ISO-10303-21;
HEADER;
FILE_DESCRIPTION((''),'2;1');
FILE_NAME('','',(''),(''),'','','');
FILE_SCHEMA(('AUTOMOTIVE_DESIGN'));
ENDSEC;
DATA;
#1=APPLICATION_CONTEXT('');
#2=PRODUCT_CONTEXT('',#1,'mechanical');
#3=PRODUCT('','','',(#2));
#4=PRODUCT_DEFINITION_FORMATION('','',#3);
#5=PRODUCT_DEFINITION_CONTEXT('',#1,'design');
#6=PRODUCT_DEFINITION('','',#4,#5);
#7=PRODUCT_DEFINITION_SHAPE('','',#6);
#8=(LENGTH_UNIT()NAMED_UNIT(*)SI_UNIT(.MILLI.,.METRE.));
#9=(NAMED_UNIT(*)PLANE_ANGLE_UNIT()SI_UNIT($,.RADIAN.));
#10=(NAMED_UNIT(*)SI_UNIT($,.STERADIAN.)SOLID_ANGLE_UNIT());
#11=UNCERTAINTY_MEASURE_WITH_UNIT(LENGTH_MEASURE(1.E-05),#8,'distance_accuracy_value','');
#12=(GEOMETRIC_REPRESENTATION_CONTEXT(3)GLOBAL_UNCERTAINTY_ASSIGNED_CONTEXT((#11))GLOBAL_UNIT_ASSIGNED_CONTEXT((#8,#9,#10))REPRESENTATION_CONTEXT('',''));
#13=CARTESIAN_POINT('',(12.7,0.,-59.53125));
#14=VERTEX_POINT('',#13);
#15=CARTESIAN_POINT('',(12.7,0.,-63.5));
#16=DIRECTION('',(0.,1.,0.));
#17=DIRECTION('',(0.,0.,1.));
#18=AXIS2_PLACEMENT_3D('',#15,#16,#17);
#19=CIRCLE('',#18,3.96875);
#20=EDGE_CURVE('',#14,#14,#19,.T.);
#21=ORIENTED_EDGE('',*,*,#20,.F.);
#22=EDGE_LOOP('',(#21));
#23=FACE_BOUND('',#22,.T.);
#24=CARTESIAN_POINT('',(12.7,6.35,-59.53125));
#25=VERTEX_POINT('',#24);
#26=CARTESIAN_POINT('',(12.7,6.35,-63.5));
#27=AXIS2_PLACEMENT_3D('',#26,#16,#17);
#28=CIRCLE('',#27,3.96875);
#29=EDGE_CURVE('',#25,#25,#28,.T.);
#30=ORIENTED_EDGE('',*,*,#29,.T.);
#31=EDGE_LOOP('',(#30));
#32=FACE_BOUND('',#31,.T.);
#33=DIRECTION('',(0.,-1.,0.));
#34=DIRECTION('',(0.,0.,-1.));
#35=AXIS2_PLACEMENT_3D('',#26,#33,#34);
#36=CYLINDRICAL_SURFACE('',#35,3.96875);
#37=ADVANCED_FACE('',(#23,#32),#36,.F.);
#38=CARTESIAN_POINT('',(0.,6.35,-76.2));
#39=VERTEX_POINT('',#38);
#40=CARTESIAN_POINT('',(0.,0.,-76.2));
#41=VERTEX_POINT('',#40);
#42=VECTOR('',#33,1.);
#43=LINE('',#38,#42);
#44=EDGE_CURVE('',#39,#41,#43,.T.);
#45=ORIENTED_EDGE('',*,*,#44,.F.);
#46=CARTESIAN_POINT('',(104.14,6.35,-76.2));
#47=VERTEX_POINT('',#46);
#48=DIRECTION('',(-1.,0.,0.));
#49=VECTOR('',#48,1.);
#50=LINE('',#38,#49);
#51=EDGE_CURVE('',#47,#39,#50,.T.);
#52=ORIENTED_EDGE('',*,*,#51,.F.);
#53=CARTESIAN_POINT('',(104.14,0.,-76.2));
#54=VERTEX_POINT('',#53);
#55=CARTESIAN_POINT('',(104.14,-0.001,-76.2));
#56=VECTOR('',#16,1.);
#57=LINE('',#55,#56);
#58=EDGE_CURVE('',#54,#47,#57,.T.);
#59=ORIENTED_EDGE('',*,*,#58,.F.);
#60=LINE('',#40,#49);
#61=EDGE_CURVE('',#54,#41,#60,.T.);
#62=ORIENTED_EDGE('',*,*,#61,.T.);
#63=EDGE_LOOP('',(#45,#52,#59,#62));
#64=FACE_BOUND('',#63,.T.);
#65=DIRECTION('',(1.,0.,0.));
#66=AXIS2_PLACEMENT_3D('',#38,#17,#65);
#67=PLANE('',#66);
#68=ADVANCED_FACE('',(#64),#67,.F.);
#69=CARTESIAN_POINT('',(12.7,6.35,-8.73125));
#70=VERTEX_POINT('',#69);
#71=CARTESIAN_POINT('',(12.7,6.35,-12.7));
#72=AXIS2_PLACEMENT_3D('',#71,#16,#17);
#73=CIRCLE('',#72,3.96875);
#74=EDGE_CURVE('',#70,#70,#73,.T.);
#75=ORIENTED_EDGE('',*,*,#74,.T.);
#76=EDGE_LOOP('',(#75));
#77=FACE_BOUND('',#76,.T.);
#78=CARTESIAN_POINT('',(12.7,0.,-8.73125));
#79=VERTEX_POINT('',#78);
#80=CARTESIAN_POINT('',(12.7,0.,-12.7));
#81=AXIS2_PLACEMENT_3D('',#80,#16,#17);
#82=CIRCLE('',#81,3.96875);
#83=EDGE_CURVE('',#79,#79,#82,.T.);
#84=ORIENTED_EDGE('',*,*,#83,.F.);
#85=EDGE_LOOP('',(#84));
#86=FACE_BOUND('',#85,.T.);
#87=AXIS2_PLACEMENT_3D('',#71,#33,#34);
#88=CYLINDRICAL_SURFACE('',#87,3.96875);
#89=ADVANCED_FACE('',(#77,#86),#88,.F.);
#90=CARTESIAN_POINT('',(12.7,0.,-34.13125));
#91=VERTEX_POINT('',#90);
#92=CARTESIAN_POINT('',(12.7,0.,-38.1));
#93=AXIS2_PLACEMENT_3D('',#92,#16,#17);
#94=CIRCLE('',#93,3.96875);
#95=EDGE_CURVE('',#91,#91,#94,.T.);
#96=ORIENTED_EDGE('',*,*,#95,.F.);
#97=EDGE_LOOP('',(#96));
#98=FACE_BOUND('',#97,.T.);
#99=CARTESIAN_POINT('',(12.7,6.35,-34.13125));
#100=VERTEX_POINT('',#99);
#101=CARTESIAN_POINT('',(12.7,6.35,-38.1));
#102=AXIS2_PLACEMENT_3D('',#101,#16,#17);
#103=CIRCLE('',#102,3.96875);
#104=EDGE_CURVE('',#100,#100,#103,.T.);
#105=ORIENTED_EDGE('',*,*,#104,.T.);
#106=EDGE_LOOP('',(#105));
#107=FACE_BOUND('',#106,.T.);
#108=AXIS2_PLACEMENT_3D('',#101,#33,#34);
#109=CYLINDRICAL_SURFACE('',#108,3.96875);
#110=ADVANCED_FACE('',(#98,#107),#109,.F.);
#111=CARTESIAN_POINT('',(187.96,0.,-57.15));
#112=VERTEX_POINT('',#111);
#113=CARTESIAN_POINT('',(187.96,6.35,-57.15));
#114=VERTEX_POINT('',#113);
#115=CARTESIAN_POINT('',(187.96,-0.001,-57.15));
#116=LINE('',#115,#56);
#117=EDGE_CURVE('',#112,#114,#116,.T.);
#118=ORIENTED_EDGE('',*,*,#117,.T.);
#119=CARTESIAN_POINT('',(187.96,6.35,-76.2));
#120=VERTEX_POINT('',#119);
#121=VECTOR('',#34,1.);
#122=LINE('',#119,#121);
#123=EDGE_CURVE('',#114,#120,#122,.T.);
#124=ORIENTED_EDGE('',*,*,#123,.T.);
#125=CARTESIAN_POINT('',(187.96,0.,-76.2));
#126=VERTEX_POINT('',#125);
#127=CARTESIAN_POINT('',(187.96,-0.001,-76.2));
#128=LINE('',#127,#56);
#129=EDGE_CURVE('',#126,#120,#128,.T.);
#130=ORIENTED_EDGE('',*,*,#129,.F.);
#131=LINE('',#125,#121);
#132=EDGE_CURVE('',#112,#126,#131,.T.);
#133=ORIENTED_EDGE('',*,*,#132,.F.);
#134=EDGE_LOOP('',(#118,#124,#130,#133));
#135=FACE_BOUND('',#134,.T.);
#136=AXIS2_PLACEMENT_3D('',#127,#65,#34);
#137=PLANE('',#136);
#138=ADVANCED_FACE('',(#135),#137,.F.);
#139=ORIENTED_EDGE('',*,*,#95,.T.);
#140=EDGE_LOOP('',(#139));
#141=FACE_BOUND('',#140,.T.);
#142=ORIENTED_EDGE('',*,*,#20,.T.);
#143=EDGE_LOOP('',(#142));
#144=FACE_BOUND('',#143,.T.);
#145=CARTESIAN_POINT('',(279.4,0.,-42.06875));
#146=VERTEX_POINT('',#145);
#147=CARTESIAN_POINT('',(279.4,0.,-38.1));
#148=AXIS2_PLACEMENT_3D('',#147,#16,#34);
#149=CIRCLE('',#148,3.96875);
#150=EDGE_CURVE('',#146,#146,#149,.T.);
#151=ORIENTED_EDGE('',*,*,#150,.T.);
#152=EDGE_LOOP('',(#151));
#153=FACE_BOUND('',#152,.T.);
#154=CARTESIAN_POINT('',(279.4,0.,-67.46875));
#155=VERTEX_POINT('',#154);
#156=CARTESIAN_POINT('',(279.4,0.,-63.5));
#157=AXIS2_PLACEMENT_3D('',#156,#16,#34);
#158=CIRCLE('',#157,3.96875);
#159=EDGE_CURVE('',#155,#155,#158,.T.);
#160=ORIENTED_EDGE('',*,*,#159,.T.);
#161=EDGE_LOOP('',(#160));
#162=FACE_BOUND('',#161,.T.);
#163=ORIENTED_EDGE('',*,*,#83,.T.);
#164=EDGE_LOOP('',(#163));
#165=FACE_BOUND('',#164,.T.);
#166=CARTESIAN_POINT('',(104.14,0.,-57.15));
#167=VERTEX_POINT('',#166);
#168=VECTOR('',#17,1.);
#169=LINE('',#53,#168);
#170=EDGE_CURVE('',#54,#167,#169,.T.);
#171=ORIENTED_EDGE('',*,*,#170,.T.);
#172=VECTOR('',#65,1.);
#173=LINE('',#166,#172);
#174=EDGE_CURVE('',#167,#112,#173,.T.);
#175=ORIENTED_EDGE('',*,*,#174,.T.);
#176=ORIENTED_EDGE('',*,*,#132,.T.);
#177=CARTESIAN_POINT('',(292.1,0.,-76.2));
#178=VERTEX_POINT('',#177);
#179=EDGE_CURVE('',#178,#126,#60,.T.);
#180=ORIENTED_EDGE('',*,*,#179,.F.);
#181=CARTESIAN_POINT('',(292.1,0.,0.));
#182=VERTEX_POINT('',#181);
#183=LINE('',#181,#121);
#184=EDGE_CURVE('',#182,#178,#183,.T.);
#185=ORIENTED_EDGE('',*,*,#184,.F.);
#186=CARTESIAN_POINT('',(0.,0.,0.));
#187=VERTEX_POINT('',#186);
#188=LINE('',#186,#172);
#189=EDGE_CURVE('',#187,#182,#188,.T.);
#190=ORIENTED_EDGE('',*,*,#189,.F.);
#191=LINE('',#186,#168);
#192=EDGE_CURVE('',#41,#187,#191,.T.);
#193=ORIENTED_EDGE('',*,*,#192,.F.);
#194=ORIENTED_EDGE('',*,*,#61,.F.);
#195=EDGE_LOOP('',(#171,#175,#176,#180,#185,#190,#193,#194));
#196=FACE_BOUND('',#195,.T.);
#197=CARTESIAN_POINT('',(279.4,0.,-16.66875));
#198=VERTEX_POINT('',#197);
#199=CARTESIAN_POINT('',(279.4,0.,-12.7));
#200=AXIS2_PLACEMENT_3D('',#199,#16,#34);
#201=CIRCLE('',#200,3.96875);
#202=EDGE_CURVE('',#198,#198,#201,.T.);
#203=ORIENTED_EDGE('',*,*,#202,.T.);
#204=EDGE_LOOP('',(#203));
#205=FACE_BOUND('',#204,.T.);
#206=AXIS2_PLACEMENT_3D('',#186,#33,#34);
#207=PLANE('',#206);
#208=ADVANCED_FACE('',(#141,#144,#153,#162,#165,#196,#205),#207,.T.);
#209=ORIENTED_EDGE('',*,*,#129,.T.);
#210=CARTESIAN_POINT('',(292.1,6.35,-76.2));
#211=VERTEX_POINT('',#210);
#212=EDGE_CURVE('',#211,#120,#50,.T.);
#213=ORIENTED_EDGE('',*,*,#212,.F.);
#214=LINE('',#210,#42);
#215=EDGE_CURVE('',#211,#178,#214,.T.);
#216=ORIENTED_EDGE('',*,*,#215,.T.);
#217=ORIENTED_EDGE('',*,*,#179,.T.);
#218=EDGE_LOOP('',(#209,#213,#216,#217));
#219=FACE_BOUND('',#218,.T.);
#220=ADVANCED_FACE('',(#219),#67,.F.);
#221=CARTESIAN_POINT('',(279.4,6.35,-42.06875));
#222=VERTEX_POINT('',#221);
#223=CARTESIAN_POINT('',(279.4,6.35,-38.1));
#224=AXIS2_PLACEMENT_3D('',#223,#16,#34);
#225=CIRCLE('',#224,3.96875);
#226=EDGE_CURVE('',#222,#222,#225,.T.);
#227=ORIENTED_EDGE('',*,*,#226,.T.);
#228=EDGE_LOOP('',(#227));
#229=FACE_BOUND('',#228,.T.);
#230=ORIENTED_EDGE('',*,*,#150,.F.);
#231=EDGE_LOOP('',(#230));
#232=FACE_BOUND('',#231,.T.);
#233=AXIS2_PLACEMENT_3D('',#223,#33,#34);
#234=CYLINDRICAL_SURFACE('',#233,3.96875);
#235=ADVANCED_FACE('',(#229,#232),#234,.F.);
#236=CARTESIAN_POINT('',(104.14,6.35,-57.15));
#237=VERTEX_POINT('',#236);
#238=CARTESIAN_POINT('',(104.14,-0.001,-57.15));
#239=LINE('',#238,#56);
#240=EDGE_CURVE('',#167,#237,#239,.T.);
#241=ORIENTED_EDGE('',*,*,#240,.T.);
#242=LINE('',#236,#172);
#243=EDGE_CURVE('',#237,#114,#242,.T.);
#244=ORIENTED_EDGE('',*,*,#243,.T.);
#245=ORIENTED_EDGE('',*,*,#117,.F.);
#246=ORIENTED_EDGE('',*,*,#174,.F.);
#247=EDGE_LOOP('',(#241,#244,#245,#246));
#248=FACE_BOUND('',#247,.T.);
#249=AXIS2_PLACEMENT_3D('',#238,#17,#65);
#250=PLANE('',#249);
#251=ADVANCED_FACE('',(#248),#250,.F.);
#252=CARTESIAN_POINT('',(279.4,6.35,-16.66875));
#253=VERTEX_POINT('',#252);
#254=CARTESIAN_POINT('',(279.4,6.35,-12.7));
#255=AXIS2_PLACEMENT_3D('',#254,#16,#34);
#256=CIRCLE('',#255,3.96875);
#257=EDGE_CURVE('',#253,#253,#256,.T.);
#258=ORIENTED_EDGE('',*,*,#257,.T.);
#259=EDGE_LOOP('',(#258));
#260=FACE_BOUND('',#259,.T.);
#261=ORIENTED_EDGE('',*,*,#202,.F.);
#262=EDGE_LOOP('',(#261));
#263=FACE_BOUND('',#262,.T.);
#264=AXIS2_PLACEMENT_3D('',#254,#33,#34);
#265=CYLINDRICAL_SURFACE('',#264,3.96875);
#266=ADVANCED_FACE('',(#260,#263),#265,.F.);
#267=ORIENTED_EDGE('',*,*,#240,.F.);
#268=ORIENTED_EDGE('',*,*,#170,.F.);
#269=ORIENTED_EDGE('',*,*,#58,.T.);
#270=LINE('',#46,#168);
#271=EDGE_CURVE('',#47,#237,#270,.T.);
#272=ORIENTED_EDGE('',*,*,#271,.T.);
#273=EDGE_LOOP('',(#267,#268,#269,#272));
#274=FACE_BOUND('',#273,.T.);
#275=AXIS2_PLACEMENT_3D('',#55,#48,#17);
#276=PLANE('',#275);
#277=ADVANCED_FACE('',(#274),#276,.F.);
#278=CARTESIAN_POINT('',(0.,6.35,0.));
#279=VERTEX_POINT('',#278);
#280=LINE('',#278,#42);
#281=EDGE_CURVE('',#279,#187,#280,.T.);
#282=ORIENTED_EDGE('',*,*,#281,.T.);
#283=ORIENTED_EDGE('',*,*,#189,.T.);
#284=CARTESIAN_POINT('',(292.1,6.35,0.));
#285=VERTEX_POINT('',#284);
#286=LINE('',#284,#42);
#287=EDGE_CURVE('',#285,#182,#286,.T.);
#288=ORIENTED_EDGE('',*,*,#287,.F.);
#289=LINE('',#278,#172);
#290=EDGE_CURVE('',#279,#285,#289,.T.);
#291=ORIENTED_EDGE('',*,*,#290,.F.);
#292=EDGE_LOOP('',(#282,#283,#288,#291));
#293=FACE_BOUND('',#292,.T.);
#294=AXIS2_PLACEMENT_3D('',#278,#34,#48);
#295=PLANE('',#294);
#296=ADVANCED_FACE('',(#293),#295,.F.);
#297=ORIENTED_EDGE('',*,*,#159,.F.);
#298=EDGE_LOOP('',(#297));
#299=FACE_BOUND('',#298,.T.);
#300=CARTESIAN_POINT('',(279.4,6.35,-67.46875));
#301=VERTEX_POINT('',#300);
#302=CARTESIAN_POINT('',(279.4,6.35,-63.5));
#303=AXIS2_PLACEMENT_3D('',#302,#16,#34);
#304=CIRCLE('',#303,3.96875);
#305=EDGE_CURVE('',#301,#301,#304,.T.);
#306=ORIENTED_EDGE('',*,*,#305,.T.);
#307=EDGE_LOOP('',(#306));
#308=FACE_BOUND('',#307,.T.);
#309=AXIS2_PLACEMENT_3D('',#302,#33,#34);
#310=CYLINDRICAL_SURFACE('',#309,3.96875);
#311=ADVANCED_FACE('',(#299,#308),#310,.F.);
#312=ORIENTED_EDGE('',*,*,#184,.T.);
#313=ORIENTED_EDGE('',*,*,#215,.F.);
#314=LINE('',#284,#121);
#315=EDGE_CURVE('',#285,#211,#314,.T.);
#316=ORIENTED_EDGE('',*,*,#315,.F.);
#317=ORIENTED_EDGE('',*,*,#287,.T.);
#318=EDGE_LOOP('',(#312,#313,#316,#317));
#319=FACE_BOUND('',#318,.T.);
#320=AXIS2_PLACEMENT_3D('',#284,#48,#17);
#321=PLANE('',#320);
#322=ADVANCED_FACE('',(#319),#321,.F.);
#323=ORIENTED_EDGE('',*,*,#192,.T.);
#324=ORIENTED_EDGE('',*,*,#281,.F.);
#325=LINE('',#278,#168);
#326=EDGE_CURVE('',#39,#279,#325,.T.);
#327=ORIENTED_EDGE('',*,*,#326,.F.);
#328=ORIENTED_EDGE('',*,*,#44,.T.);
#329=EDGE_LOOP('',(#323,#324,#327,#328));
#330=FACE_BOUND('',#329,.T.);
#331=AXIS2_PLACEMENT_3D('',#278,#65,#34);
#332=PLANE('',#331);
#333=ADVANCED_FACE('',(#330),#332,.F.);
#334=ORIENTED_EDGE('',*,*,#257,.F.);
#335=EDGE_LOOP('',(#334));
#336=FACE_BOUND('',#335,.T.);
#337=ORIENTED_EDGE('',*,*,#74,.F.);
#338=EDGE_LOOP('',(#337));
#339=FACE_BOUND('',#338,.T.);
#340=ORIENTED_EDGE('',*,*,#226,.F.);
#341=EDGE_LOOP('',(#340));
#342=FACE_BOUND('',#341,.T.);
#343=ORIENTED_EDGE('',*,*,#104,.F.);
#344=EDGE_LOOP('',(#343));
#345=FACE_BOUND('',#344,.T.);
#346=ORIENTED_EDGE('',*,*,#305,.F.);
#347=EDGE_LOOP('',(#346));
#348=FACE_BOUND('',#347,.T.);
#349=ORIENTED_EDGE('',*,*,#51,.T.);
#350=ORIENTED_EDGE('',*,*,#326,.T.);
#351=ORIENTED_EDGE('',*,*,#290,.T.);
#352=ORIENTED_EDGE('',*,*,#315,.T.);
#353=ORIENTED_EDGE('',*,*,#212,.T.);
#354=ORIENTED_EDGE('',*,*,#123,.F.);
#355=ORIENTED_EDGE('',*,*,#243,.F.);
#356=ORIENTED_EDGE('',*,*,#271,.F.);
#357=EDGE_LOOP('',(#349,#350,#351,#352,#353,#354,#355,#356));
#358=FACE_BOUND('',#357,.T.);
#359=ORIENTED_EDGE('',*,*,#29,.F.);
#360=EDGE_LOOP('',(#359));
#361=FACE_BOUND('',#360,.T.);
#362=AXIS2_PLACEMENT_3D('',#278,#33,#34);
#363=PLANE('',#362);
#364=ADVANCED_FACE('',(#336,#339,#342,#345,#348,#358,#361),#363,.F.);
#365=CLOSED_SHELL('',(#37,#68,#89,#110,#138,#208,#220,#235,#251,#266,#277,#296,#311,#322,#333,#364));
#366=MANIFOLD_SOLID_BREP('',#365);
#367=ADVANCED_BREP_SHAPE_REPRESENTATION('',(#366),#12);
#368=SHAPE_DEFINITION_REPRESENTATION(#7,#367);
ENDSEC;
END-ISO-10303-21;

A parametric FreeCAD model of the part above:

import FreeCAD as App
import Part
import Sketcher
Q = App.Units.Quantity


def add_polygon(sketch, points):
    """Adds a closed chain of lines whose ends are joined by coincident constraints."""
    first, n = sketch.GeometryCount, len(points)
    for a, b in zip(points, points[1:] + points[:1]):
        sketch.addGeometry(Part.LineSegment(App.Vector(*a, 0), App.Vector(*b, 0)), False)
    for i in range(n):
        sketch.addConstraint(Sketcher.Constraint("Coincident", first + i, 2, first + (i + 1) % n, 1))

doc = App.newDocument("Part")
body = doc.addObject("PartDesign::Body", "Body")

# Sketch on XZ plane
sketch1 = body.newObject("Sketcher::SketchObject", "Sketch")
sketch1.AttachmentSupport = (doc.getObject("XZ_Plane"), [""])
sketch1.MapMode = "FlatFace"
add_polygon(sketch1, [(0, -76.2), (0, 0), (292.1, 0), (292.1, -76.2)])  # lines 0-3
sketch1.addGeometry(Part.Circle(App.Vector(12.7, -12.7, 0), App.Vector(0, 0, 1), 4), False)  # 4
sketch1.addGeometry(Part.Circle(App.Vector(279.4, -12.7, 0), App.Vector(0, 0, 1), 4), False)  # 5
sketch1.addGeometry(Part.Circle(App.Vector(12.7, -38.1, 0), App.Vector(0, 0, 1), 4), False)  # 6
sketch1.addGeometry(Part.Circle(App.Vector(12.7, -63.5, 0), App.Vector(0, 0, 1), 4), False)  # 7
sketch1.addGeometry(Part.Circle(App.Vector(279.4, -38.1, 0), App.Vector(0, 0, 1), 4), False)  # 8
sketch1.addGeometry(Part.Circle(App.Vector(279.4, -63.5, 0), App.Vector(0, 0, 1), 4), False)  # 9
sketch1.addConstraint(Sketcher.Constraint("Vertical", 0))
sketch1.addConstraint(Sketcher.Constraint("Horizontal", 1))
sketch1.addConstraint(Sketcher.Constraint("Vertical", 2))
sketch1.addConstraint(Sketcher.Constraint("Horizontal", 3))
sketch1.addConstraint(Sketcher.Constraint("Coincident", 0, 2, -1, 1))
sketch1.addConstraint(Sketcher.Constraint("Equal", 4, 5))
sketch1.addConstraint(Sketcher.Constraint("Equal", 5, 6))
sketch1.addConstraint(Sketcher.Constraint("Equal", 6, 7))
sketch1.addConstraint(Sketcher.Constraint("Equal", 7, 8))
sketch1.addConstraint(Sketcher.Constraint("Equal", 8, 9))
sketch1.addConstraint(Sketcher.Constraint("Horizontal", 4, 3, 5, 3))
sketch1.addConstraint(Sketcher.Constraint("Horizontal", 6, 3, 8, 3))
sketch1.addConstraint(Sketcher.Constraint("Horizontal", 7, 3, 9, 3))
sketch1.addConstraint(Sketcher.Constraint("Vertical", 4, 3, 6, 3))
sketch1.addConstraint(Sketcher.Constraint("Vertical", 6, 3, 7, 3))
sketch1.addConstraint(Sketcher.Constraint("Vertical", 5, 3, 8, 3))
sketch1.addConstraint(Sketcher.Constraint("Vertical", 8, 3, 9, 3))
sketch1.addConstraint(Sketcher.Constraint("DistanceY", 0, 1, 0, 2, Q("3 in")))
sketch1.addConstraint(Sketcher.Constraint("Diameter", 4, Q("0.3125 in")))
sketch1.addConstraint(Sketcher.Constraint("DistanceX", 1, 1, 1, 2, Q("11.5 in")))
sketch1.addConstraint(Sketcher.Constraint("DistanceX", -1, 1, 5, 3, Q("11 in")))
sketch1.addConstraint(Sketcher.Constraint("DistanceY", 6, 3, 4, 3, Q("1 in")))
sketch1.addConstraint(Sketcher.Constraint("DistanceY", 7, 3, 6, 3, Q("1 in")))
sketch1.addConstraint(Sketcher.Constraint("DistanceX", 4, 3, 1, 2, Q("11 in")))
sketch1.addConstraint(Sketcher.Constraint("DistanceY", 4, 3, -1, 1, Q("0.5 in")))
pad1 = body.newObject("PartDesign::Pad", "Pad")
pad1.Profile = sketch1
pad1.Length = Q("0.25 in")
pad1.Reversed = True

# Sketch on XZ plane
sketch2 = body.newObject("Sketcher::SketchObject", "Sketch001")
sketch2.AttachmentSupport = (doc.getObject("XZ_Plane"), [""])
sketch2.MapMode = "FlatFace"
sketch2.AttachmentOffset = App.Placement(App.Vector(0, 0, -0.25 * 25.4), App.Rotation())
add_polygon(sketch2, [(104, -76), (104, -57), (188, -57), (188, -76)])  # lines 0-3
sketch2.addConstraint(Sketcher.Constraint("Vertical", 0))
sketch2.addConstraint(Sketcher.Constraint("Horizontal", 1))
sketch2.addConstraint(Sketcher.Constraint("Vertical", 2))
sketch2.addConstraint(Sketcher.Constraint("Horizontal", 3))
sketch2.addConstraint(Sketcher.Constraint("DistanceX", 1, 1, 1, 2, Q("3.3 in")))
sketch2.addConstraint(Sketcher.Constraint("DistanceY", 2, 2, -1, 1, Q("3 in")))
sketch2.addConstraint(Sketcher.Constraint("DistanceY", 0, 1, 0, 2, Q("0.75 in")))
sketch2.addConstraint(Sketcher.Constraint("DistanceX", -1, 1, 0, 2, Q("4.1 in")))
pocket1 = body.newObject("PartDesign::Pocket", "Pocket")
pocket1.Profile = sketch2
pocket1.Type = "UpToFirst"
pocket1.Reversed = True

doc.recompute()
